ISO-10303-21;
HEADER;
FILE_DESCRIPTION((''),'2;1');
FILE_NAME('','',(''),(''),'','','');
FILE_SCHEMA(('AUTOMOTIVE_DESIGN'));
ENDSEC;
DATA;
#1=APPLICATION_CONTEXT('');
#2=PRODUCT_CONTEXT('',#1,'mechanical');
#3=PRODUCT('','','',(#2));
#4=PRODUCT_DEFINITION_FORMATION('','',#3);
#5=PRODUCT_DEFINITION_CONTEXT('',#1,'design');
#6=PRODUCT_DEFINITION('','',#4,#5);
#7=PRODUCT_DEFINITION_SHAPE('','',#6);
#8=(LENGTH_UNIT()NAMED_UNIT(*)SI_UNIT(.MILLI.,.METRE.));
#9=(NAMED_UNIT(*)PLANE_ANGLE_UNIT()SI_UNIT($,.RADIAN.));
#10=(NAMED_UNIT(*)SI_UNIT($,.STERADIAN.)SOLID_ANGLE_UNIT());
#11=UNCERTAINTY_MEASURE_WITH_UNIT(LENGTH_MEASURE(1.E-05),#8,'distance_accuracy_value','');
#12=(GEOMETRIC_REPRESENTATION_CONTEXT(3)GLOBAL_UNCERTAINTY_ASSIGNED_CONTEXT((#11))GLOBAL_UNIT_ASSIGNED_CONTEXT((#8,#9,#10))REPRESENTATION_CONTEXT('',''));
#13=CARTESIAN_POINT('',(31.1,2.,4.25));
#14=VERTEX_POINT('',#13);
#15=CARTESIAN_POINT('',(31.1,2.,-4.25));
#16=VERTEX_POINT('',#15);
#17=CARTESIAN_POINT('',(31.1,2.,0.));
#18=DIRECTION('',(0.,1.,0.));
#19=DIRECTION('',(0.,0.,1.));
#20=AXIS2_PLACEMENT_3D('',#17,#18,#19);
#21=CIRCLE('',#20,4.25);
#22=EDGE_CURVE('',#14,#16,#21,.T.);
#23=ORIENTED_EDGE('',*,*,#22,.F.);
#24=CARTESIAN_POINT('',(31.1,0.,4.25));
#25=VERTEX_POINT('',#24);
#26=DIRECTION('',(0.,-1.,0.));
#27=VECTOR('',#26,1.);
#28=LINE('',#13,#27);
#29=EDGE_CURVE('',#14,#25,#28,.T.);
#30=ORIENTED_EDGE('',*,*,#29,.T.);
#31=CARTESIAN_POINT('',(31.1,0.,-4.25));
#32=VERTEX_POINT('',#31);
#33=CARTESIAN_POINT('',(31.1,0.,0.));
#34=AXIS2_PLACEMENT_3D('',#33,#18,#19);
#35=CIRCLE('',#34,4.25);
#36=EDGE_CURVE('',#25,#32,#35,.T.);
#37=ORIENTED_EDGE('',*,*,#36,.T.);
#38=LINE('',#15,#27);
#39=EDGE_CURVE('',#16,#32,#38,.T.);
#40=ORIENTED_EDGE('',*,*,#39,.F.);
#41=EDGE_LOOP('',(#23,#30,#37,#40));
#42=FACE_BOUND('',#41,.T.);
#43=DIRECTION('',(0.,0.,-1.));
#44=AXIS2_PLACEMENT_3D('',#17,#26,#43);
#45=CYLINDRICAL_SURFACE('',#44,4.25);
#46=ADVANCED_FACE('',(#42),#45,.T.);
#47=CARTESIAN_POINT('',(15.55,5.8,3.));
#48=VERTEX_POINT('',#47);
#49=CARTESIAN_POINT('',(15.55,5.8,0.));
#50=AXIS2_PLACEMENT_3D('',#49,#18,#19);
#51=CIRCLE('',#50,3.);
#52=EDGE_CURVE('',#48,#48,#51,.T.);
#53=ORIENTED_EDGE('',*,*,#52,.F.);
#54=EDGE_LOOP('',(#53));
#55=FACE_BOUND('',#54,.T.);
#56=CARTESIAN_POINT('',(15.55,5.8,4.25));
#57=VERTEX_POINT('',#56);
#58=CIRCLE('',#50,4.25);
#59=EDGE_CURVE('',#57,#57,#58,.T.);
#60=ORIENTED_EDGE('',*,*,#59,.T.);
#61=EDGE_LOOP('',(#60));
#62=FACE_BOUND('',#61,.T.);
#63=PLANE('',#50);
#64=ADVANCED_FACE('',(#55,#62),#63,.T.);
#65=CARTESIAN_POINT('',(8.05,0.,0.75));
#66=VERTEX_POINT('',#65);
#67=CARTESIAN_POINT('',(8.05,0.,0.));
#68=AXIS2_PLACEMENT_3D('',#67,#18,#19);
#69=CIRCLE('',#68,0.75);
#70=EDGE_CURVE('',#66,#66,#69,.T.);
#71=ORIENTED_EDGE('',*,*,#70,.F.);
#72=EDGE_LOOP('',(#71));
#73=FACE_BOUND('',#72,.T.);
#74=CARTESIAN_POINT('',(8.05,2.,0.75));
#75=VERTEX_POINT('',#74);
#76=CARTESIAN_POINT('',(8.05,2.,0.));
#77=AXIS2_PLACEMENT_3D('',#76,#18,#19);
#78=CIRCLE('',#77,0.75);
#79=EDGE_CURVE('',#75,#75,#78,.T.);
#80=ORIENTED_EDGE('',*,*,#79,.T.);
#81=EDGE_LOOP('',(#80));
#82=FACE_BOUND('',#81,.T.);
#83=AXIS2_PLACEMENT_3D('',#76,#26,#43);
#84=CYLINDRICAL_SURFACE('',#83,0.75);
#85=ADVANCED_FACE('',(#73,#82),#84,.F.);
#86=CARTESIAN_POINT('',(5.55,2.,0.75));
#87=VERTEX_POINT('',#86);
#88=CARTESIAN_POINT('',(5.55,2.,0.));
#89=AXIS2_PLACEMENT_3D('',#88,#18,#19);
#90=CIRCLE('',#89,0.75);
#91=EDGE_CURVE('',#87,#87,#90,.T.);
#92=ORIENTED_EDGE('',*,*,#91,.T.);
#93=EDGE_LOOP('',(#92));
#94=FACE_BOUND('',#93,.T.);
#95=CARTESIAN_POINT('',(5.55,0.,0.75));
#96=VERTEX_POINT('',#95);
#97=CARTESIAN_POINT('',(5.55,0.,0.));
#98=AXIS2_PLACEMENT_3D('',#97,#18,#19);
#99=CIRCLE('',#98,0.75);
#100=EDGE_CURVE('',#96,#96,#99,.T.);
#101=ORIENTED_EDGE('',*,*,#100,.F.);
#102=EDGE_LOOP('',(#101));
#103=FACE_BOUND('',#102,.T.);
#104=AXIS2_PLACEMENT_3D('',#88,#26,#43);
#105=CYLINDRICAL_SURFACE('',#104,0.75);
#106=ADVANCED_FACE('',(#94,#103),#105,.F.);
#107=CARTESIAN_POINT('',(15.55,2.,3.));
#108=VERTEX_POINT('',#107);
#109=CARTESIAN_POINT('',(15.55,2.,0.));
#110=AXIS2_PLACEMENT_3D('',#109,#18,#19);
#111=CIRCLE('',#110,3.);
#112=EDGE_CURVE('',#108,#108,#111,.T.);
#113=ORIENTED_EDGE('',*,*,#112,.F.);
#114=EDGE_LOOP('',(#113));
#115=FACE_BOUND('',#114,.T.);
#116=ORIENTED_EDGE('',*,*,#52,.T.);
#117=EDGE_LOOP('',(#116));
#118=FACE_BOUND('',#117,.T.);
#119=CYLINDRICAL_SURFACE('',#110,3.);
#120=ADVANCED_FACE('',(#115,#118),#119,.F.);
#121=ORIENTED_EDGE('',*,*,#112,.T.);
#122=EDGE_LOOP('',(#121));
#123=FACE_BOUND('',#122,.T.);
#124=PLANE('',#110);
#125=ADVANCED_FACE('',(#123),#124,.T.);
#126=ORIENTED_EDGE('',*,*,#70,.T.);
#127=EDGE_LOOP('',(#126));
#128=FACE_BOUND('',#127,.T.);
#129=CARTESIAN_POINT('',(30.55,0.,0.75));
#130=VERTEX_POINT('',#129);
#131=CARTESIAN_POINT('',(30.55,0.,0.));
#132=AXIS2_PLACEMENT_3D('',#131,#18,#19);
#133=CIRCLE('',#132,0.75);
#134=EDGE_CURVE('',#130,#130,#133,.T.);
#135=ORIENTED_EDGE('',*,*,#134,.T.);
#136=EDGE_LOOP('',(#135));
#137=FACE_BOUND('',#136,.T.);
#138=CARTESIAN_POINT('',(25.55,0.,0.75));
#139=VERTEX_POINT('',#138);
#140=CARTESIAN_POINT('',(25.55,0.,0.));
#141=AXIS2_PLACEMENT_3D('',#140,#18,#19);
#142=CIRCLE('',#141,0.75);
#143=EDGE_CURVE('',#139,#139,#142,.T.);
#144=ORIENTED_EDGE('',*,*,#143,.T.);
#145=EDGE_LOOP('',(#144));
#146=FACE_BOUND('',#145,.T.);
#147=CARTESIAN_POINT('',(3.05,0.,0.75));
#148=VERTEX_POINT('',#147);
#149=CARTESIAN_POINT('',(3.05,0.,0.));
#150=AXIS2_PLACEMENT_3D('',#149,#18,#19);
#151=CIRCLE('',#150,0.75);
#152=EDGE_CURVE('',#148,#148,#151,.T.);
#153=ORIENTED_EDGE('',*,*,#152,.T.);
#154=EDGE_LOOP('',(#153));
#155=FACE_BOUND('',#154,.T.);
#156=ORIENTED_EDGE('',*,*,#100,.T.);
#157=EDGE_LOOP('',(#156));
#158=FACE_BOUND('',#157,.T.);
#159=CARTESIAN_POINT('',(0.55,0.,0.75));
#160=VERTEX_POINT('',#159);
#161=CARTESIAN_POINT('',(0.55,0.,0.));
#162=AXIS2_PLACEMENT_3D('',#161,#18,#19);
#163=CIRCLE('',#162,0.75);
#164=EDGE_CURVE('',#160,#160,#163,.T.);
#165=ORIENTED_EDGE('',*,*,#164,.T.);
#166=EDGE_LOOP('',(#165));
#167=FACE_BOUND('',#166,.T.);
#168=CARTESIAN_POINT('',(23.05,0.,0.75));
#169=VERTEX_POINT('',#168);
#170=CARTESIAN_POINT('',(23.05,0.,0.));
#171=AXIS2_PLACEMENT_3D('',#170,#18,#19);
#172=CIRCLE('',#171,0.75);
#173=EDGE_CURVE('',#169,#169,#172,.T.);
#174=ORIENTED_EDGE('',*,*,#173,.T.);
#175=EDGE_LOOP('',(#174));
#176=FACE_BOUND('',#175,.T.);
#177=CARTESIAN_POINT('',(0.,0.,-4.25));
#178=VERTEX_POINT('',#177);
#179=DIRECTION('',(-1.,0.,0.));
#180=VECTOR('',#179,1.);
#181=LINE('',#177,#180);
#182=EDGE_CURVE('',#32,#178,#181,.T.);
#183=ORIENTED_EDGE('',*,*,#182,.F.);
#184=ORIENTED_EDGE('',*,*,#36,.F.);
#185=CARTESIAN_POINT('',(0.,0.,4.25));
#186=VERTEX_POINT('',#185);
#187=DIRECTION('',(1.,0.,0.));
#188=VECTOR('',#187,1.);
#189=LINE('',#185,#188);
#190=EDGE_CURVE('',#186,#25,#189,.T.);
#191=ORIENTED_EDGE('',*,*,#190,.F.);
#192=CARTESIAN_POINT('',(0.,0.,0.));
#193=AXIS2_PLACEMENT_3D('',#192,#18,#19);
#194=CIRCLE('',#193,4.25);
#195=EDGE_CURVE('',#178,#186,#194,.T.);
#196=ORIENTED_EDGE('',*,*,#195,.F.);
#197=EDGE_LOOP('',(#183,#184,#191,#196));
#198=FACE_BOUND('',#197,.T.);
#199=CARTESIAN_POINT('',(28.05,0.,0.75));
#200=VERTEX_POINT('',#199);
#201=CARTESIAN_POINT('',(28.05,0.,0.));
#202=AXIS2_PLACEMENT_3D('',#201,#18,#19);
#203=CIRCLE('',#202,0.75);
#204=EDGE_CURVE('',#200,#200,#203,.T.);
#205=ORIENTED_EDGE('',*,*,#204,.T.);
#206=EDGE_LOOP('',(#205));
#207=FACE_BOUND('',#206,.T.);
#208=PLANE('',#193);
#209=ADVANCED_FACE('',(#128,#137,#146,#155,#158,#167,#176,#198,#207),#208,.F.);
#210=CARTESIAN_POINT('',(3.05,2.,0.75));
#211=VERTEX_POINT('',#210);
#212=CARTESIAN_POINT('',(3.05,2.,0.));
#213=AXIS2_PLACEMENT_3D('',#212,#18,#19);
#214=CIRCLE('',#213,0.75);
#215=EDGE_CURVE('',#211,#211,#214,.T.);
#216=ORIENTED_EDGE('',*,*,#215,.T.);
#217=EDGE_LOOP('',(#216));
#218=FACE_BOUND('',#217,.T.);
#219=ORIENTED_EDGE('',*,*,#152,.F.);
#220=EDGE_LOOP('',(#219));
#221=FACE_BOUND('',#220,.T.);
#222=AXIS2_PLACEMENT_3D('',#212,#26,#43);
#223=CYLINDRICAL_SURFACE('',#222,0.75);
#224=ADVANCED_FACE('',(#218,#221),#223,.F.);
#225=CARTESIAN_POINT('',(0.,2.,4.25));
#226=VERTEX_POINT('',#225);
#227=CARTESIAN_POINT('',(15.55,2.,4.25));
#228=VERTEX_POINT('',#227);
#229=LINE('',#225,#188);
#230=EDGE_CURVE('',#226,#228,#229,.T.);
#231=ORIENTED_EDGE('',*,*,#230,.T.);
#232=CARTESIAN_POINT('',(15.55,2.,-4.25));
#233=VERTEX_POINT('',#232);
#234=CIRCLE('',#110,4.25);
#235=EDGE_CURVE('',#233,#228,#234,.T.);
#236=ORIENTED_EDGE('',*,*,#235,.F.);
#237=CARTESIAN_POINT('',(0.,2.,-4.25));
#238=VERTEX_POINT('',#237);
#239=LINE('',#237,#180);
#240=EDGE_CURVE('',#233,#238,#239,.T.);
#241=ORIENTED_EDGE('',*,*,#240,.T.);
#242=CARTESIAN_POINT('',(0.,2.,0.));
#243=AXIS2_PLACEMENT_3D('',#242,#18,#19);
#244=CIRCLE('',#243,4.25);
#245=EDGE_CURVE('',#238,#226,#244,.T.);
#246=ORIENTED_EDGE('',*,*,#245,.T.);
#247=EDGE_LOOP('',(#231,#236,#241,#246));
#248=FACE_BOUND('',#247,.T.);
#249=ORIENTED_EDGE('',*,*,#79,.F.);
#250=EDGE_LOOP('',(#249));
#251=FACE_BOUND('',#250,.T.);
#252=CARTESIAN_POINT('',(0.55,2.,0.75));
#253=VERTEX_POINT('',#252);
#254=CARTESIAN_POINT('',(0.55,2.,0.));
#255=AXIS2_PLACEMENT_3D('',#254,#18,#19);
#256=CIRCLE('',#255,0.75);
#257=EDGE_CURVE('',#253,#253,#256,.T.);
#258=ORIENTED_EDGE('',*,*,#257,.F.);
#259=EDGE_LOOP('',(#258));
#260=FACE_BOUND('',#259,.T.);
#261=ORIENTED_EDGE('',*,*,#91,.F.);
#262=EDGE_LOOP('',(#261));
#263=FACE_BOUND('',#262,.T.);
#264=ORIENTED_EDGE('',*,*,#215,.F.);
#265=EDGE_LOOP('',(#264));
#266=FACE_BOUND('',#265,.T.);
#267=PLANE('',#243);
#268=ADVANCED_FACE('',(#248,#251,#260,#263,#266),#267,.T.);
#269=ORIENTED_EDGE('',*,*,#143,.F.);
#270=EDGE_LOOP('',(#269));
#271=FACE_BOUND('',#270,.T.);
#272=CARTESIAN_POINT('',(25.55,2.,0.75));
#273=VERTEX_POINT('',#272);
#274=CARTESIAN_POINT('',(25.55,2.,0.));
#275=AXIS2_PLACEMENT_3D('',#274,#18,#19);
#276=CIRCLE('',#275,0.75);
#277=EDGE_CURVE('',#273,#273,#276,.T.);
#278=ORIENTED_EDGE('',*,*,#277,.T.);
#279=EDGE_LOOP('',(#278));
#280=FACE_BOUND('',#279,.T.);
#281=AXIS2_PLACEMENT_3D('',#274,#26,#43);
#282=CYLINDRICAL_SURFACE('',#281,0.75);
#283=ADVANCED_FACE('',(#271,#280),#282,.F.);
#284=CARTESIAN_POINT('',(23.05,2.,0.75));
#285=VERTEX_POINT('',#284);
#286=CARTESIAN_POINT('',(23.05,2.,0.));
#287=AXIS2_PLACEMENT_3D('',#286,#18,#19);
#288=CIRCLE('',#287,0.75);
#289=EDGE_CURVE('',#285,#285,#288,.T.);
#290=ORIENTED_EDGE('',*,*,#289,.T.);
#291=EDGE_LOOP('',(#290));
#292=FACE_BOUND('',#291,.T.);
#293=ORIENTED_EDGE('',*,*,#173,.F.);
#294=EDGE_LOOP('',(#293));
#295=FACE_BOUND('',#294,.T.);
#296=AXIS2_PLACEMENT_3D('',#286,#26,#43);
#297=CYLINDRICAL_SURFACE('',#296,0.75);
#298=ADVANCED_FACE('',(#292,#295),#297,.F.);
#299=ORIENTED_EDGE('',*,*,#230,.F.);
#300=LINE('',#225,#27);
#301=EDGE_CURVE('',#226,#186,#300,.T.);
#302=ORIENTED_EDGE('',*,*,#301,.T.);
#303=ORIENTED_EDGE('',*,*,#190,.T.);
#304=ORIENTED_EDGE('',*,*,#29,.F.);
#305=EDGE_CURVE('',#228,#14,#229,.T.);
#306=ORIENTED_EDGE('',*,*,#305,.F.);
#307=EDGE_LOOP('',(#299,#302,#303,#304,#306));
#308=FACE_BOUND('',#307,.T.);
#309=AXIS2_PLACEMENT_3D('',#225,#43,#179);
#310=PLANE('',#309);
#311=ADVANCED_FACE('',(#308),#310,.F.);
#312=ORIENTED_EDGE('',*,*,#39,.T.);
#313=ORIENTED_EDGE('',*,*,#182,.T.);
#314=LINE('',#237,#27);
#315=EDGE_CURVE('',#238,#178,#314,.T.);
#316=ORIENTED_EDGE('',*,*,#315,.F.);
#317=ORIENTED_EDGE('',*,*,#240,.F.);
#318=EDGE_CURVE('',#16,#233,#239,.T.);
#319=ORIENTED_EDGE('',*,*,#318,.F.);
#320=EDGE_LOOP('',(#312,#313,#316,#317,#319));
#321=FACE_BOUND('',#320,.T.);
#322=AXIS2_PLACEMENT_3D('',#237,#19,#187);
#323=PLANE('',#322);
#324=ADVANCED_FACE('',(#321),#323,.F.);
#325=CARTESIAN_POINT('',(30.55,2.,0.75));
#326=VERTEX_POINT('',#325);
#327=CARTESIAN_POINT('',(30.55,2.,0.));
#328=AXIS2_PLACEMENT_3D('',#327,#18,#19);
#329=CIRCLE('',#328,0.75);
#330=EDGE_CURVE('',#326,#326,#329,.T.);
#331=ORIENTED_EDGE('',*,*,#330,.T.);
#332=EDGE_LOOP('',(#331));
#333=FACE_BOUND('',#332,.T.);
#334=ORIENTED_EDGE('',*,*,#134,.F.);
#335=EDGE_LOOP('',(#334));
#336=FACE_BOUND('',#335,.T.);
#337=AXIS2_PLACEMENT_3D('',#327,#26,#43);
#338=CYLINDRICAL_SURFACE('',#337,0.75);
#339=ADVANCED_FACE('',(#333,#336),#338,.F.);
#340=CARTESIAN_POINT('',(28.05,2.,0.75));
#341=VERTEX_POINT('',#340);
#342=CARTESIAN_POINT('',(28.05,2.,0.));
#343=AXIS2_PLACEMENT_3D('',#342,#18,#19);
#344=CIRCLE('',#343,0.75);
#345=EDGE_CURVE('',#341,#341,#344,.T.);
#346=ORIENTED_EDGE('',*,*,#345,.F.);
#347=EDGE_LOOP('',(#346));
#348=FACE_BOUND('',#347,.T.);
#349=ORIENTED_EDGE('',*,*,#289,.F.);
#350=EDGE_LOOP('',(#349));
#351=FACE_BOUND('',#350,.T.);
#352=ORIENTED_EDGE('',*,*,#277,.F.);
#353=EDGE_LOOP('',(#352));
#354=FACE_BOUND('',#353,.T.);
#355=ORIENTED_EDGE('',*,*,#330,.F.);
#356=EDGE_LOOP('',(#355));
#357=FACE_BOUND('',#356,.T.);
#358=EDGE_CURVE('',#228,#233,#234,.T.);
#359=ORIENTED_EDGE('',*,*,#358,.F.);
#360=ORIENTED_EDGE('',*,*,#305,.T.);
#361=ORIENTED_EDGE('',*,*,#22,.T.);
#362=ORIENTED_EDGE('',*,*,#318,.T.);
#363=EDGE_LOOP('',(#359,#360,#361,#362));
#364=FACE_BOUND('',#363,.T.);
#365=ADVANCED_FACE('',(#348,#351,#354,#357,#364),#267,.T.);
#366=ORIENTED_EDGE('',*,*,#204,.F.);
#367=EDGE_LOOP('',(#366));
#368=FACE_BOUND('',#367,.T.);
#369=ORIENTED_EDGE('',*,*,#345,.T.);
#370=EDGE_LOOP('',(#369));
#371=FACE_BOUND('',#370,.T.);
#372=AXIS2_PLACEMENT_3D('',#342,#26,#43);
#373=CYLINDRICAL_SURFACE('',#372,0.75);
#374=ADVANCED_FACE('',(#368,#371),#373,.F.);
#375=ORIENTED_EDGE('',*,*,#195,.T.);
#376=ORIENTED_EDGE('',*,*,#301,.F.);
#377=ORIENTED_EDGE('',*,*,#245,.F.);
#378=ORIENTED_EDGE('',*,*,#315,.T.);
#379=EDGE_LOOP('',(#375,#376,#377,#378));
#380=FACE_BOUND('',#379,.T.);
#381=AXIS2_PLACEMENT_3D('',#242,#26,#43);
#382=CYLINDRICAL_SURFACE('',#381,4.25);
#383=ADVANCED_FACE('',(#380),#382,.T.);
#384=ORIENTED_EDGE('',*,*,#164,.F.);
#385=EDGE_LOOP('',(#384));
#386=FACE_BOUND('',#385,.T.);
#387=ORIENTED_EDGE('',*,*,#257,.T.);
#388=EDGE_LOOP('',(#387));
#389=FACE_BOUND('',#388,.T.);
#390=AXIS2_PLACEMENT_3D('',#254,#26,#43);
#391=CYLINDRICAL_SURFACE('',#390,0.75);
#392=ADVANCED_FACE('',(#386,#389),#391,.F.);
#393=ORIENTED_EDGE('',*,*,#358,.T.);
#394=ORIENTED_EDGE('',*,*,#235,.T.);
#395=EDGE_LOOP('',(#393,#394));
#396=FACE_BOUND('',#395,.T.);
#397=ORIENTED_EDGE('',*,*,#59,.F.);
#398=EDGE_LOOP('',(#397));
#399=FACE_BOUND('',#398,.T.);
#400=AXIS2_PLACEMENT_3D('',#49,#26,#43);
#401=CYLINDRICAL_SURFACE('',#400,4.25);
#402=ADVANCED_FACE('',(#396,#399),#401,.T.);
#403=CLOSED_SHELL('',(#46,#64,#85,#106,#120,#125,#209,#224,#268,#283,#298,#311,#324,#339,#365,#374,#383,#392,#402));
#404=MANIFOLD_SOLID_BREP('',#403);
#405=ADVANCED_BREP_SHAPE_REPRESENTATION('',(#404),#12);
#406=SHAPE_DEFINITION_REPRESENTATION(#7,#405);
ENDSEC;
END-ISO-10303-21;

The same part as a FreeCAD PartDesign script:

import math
import FreeCAD as App
import Part
import Sketcher
Q = App.Units.Quantity

doc = App.newDocument("Part")
body = doc.addObject("PartDesign::Body", "Body")

sketch1 = body.newObject("Sketcher::SketchObject", "Sketch")
sketch1.AttachmentSupport = (doc.getObject("XZ_Plane"), [""])
sketch1.MapMode = "FlatFace"
sketch1.addGeometry([
    Part.LineSegment(App.Vector(31.1, -4.2, 0), App.Vector(0, -4.2, 0)),
    Part.ArcOfCircle(Part.Circle(App.Vector(0, 0, 0), App.Vector(0, 0, 1), 4.2), math.radians(90), math.radians(270)),
    Part.LineSegment(App.Vector(0, 4.2, 0), App.Vector(31.1, 4.2, 0)),
    Part.ArcOfCircle(Part.Circle(App.Vector(31.1, 0, 0), App.Vector(0, 0, 1), 4.2), math.radians(-90), math.radians(90)),
    Part.Circle(App.Vector(30.6, 0, 0), App.Vector(0, 0, 1), 0.8),
    Part.Circle(App.Vector(28.1, 0, 0), App.Vector(0, 0, 1), 0.8),
    Part.Circle(App.Vector(25.6, 0, 0), App.Vector(0, 0, 1), 0.8),
    Part.Circle(App.Vector(23.1, 0, 0), App.Vector(0, 0, 1), 0.8),
    Part.Circle(App.Vector(8.1, 0, 0), App.Vector(0, 0, 1), 0.8),
    Part.Circle(App.Vector(5.5, 0, 0), App.Vector(0, 0, 1), 0.8),
    Part.Circle(App.Vector(3, 0, 0), App.Vector(0, 0, 1), 0.8),
    Part.Circle(App.Vector(0.6, 0, 0), App.Vector(0, 0, 1), 0.8),
], False)
sketch1.addConstraint([
    Sketcher.Constraint("Tangent", 0, 2, 1, 2),
    Sketcher.Constraint("Tangent", 1, 1, 2, 1),
    Sketcher.Constraint("Tangent", 2, 2, 3, 2),
    Sketcher.Constraint("Tangent", 3, 1, 0, 1),
    Sketcher.Constraint("Horizontal", 0),
    Sketcher.Constraint("Horizontal", 2),
    Sketcher.Constraint("Coincident", 1, 3, -1, 1),
    Sketcher.Constraint("Equal", 4, 5),
    Sketcher.Constraint("Equal", 5, 6),
    Sketcher.Constraint("Equal", 6, 7),
    Sketcher.Constraint("Equal", 7, 8),
    Sketcher.Constraint("Equal", 8, 9),
    Sketcher.Constraint("Equal", 9, 10),
    Sketcher.Constraint("Equal", 10, 11),
    Sketcher.Constraint("PointOnObject", 4, 3, -1),
    Sketcher.Constraint("PointOnObject", 5, 3, -1),
    Sketcher.Constraint("PointOnObject", 6, 3, -1),
    Sketcher.Constraint("PointOnObject", 7, 3, -1),
    Sketcher.Constraint("PointOnObject", 8, 3, -1),
    Sketcher.Constraint("PointOnObject", 9, 3, -1),
    Sketcher.Constraint("PointOnObject", 10, 3, -1),
    Sketcher.Constraint("PointOnObject", 11, 3, -1),
    Sketcher.Constraint("Diameter", 4, Q("1.5 mm")),
    Sketcher.Constraint("Radius", 1, Q("4.25 mm")),
    Sketcher.Constraint("DistanceX", 0, 2, 0, 1, Q("31.1 mm")),
    Sketcher.Constraint("DistanceX", 6, 3, 4, 3, Q("5 mm")),
    Sketcher.Constraint("DistanceX", 7, 3, 5, 3, Q("5 mm")),
    Sketcher.Constraint("DistanceX", 8, 3, 7, 3, Q("15 mm")),
    Sketcher.Constraint("DistanceX", 9, 3, 6, 3, Q("20 mm")),
    Sketcher.Constraint("DistanceX", 10, 3, 8, 3, Q("5 mm")),
    Sketcher.Constraint("DistanceX", 11, 3, 9, 3, Q("5 mm")),
    Sketcher.Constraint("DistanceX", 5, 3, 4, 3, Q("2.5 mm")),
    Sketcher.Constraint("DistanceX", -1, 1, 4, 3, Q("30.55 mm")),
])
pad1 = body.newObject("PartDesign::Pad", "Pad")
pad1.Profile = sketch1
pad1.Length = 2
pad1.Reversed = True

sketch2 = body.newObject("Sketcher::SketchObject", "Sketch001")
sketch2.AttachmentSupport = (doc.getObject("XZ_Plane"), [""])
sketch2.MapMode = "FlatFace"
sketch2.AttachmentOffset = App.Placement(App.Vector(0, 0, -2), App.Rotation())
sketch2.addGeometry(Part.Circle(App.Vector(15.6, 0, 0), App.Vector(0, 0, 1), 4.2), False)
sketch2.addConstraint([
    Sketcher.Constraint("PointOnObject", 0, 3, -1),
    Sketcher.Constraint("Diameter", 0, Q("8.5 mm")),
    Sketcher.Constraint("DistanceX", -1, 1, 0, 3, Q("15.55 mm")),
])
pad2 = body.newObject("PartDesign::Pad", "Pad001")
pad2.Profile = sketch2
pad2.Length = 3.8
pad2.Reversed = True

sketch3 = body.newObject("Sketcher::SketchObject", "Sketch002")
sketch3.AttachmentSupport = (doc.getObject("XZ_Plane"), [""])
sketch3.MapMode = "FlatFace"
sketch3.AttachmentOffset = App.Placement(App.Vector(0, 0, -5.8), App.Rotation())
sketch3.addGeometry(Part.Circle(App.Vector(15.6, 0, 0), App.Vector(0, 0, 1), 3), False)
sketch3.addConstraint([
    Sketcher.Constraint("PointOnObject", 0, 3, -1),
    Sketcher.Constraint("Diameter", 0, Q("6 mm")),
    Sketcher.Constraint("DistanceX", -1, 1, 0, 3, Q("15.55 mm")),
])
pocket1 = body.newObject("PartDesign::Pocket", "Pocket")
pocket1.Profile = sketch3
pocket1.Length = 3.8
pocket1.Reversed = True

doc.recompute()
